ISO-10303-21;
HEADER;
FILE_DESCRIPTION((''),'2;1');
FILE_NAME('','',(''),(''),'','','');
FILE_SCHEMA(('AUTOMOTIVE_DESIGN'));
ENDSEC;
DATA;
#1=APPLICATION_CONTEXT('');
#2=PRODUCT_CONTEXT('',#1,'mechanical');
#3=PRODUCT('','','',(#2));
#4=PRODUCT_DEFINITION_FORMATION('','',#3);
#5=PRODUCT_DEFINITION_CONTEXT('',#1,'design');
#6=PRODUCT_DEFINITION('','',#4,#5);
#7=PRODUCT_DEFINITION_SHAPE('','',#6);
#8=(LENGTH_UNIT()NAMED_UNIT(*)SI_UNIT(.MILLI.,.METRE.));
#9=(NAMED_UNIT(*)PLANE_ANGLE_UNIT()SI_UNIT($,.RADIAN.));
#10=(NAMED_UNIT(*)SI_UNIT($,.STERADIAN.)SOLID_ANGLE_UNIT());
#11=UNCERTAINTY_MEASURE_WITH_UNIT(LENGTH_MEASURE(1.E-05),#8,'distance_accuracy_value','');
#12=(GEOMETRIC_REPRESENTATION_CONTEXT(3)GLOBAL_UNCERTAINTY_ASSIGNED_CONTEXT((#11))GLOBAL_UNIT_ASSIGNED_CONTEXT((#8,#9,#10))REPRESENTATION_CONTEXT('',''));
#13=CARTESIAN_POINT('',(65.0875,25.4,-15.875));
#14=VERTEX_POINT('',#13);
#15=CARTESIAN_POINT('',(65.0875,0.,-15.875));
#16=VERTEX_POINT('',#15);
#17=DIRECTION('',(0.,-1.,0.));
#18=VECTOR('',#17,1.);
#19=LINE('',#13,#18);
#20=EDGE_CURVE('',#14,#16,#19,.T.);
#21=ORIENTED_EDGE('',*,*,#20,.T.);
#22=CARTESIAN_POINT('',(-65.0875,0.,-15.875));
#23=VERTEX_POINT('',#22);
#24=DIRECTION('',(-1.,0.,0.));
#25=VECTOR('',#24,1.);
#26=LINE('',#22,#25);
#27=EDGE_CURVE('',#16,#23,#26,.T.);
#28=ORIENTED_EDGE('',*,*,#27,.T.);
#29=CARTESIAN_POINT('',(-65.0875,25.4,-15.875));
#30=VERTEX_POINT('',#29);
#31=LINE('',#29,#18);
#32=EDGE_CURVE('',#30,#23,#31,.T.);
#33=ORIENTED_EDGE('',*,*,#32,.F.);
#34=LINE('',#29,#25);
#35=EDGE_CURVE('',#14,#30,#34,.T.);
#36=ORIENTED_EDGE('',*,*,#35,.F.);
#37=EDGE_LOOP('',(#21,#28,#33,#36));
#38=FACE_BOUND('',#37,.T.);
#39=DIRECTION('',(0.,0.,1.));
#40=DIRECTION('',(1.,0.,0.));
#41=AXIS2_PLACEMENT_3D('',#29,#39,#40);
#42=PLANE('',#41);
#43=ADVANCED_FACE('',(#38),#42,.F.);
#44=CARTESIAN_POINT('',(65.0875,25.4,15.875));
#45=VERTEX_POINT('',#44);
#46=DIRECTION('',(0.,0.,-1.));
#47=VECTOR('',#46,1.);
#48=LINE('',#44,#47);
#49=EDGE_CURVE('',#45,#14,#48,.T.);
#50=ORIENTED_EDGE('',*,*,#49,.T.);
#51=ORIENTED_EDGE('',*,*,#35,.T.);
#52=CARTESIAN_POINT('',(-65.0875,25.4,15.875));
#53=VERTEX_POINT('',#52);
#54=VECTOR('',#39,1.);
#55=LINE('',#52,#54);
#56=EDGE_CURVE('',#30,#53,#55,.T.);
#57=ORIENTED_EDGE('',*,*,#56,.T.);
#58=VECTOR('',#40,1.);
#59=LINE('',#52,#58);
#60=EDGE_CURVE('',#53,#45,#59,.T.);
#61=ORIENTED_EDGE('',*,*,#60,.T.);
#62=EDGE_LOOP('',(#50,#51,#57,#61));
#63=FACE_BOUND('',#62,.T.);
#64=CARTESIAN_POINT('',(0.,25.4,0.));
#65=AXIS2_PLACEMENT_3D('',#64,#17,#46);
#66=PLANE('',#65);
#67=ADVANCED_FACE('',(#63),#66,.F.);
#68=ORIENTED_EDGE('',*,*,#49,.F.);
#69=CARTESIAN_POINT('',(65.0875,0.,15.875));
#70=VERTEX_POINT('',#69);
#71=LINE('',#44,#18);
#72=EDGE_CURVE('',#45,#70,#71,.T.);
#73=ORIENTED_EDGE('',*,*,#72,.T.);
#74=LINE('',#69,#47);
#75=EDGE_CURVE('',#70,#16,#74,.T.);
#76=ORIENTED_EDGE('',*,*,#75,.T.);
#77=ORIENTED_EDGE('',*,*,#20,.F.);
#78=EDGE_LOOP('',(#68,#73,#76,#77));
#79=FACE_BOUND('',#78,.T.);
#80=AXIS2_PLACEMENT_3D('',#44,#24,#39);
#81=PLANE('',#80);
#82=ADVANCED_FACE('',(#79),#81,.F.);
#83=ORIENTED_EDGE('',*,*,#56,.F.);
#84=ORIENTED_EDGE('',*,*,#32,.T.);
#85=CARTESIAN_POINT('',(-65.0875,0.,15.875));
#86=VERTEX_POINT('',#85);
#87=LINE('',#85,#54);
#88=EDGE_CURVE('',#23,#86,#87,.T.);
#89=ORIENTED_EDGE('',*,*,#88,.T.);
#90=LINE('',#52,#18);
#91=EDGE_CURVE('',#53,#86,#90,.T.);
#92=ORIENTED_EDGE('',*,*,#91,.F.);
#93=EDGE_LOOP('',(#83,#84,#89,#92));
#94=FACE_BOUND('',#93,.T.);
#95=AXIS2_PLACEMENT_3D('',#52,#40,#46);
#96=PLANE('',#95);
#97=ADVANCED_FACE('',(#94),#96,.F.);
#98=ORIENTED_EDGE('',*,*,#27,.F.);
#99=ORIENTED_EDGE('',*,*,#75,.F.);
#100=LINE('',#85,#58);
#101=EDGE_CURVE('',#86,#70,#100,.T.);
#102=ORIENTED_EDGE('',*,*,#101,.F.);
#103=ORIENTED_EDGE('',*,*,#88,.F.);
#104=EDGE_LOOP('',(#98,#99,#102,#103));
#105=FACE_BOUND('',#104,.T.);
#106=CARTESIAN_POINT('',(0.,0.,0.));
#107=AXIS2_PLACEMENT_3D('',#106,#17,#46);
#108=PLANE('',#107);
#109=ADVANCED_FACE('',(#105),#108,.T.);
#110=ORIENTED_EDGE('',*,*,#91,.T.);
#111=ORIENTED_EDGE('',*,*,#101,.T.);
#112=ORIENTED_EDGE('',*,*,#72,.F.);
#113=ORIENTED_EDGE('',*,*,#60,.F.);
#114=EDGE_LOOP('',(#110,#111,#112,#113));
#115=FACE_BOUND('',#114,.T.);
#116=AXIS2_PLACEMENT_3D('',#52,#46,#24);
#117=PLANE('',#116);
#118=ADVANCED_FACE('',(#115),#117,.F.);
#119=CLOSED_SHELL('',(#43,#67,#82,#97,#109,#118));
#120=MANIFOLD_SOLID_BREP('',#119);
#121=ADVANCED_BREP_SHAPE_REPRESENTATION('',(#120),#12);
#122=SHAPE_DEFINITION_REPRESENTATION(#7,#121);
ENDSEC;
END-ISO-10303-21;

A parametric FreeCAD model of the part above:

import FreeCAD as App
import Part
import Sketcher

V = App.Vector
Q = App.Units.Quantity

doc = App.newDocument("Part")
body = doc.addObject("PartDesign::Body", "Body")

# Sketch on XZ plane
sketch1 = body.newObject("Sketcher::SketchObject", "Sketch")
sketch1.AttachmentSupport = (doc.getObject("XZ_Plane"), [""])
sketch1.MapMode = "FlatFace"
sketch1.addGeometry(Part.LineSegment(V(-65, -16, 0), V(-65, 16, 0)), False)
sketch1.addGeometry(Part.LineSegment(V(-65, 16, 0), V(65, 16, 0)), False)
sketch1.addGeometry(Part.LineSegment(V(65, 16, 0), V(65, -16, 0)), False)
sketch1.addGeometry(Part.LineSegment(V(65, -16, 0), V(-65, -16, 0)), False)
sketch1.addConstraint(Sketcher.Constraint("Coincident", 0, 2, 1, 1))
sketch1.addConstraint(Sketcher.Constraint("Coincident", 1, 2, 2, 1))
sketch1.addConstraint(Sketcher.Constraint("Coincident", 2, 2, 3, 1))
sketch1.addConstraint(Sketcher.Constraint("Coincident", 3, 2, 0, 1))
sketch1.addConstraint(Sketcher.Constraint("Vertical", 0))
sketch1.addConstraint(Sketcher.Constraint("Horizontal", 1))
sketch1.addConstraint(Sketcher.Constraint("Vertical", 2))
sketch1.addConstraint(Sketcher.Constraint("Horizontal", 3))
sketch1.addConstraint(Sketcher.Constraint("Symmetric", 0, 2, 2, 2, -1, 1))
sketch1.addConstraint(Sketcher.Constraint("DistanceY", 0, 1, 0, 2, Q("1.25 in")))
sketch1.addConstraint(Sketcher.Constraint("DistanceX", 1, 1, 1, 2, Q("5.125 in")))
pad1 = body.newObject("PartDesign::Pad", "Pad")
pad1.Profile = sketch1
pad1.Length = Q("1 in")
pad1.Reversed = True

doc.recompute()
